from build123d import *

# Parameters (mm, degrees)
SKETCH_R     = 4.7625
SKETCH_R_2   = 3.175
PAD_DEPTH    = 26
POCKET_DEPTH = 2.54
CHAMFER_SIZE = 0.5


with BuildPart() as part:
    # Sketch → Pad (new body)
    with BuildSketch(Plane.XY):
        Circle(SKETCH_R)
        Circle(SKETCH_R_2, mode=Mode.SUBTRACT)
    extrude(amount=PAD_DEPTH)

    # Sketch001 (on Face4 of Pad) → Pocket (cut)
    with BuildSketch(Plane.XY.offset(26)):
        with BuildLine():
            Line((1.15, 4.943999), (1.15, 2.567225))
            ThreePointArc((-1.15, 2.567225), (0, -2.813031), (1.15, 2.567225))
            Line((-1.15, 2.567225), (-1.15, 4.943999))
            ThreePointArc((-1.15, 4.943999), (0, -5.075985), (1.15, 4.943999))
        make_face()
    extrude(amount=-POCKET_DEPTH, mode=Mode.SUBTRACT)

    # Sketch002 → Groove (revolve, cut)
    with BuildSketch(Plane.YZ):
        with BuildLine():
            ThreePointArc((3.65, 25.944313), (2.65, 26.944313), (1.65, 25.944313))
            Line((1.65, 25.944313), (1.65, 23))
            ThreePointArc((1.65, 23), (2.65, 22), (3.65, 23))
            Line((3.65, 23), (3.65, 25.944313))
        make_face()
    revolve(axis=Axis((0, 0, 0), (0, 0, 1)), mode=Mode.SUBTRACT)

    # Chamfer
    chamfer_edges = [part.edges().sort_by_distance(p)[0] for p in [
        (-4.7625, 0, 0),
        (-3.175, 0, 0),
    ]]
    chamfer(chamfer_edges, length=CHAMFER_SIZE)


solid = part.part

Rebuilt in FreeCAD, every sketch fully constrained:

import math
import FreeCAD as App
import Part
import Sketcher
from FreeCAD import Vector
Q = App.Units.Quantity


def edges_at(feature, points):
    """Names of the edges that pass closest to the given points."""
    edges = feature.Shape.Edges
    near = lambda p: min(range(len(edges)), key=lambda i: edges[i].distToShape(Part.Vertex(*p))[0])
    return sorted({f"Edge{near(p) + 1}" for p in points})

doc = App.newDocument("Part")
params = doc.addObject("Spreadsheet::Sheet", "Params")
for row, (alias, value) in enumerate([
    ("sketch1_diameter", "6.35 mm"),
    ("pad1_length", "26 mm"),
    ("pocket1_length", "2.54 mm"),
    ("sketch3_radius", "1 mm"),
    ("groove_angle", "360 deg"),
    ("chamfer_size", "0.5 mm"),
], start=1):
    params.set(f"A{row}", alias)
    params.set(f"B{row}", "=" + value)
    params.setAlias(f"B{row}", alias)

body = doc.addObject("PartDesign::Body", "Body")

# Sketch on XY plane
sketch1 = doc.addObject("Sketcher::SketchObject", "Sketch")
body.addObject(sketch1)
sketch1.AttachmentSupport = (doc.XY_Plane, [""])
sketch1.MapMode = "FlatFace"
sketch1.addGeometry([
    Part.Circle(Vector(0, 0, 0), Vector(0, 0, 1), 4.8),
    Part.Circle(Vector(0, 0, 0), Vector(0, 0, 1), 3.2),
], False)
sketch1.addConstraint([
    Sketcher.Constraint("Coincident", 0, 3, -1, 1),
    Sketcher.Constraint("Coincident", 1, 3, -1, 1),
    Sketcher.Constraint("Diameter", 1, Q("6.35 mm")),
    Sketcher.Constraint("Diameter", 0, Q("9.525 mm")),
])
sketch1.setExpression("Constraints[2]", "Params.sketch1_diameter")
pad1 = doc.addObject("PartDesign::Pad", "Pad")
body.addObject(pad1)
pad1.Profile = sketch1
pad1.setExpression("Length", "Params.pad1_length")

# Sketch on XY plane
sketch2 = doc.addObject("Sketcher::SketchObject", "Sketch001")
body.addObject(sketch2)
sketch2.AttachmentSupport = (doc.XY_Plane, [""])
sketch2.MapMode = "FlatFace"
sketch2.AttachmentOffset = App.Placement(Vector(0, 0, 26), App.Rotation())
sketch2.addGeometry([
    Part.LineSegment(Vector(1.1, 4.9, 0), Vector(1.1, 2.6, 0)),
    Part.ArcOfCircle(Part.Circle(Vector(0, 0, 0), Vector(0, 0, 1), 2.8), math.radians(114), math.radians(426)),
    Part.LineSegment(Vector(-1.1, 2.6, 0), Vector(-1.1, 4.9, 0)),
    Part.ArcOfCircle(Part.Circle(Vector(0, 0, 0), Vector(0, 0, 1), 5.1), math.radians(103), math.radians(437)),
], False)
sketch2.addConstraint([
    Sketcher.Constraint("Coincident", 0, 2, 1, 2),
    Sketcher.Constraint("Coincident", 1, 1, 2, 1),
    Sketcher.Constraint("Coincident", 2, 2, 3, 1),
    Sketcher.Constraint("Coincident", 3, 2, 0, 1),
    Sketcher.Constraint("Vertical", 0),
    Sketcher.Constraint("Vertical", 2),
    Sketcher.Constraint("Coincident", 1, 3, -1, 1),
    Sketcher.Constraint("Coincident", 3, 3, -1, 1),
    Sketcher.Constraint("Horizontal", 0, 2, 1, 1),
    Sketcher.Constraint("DistanceX", 1, 1, 0, 2, Q("2.3 mm")),
    Sketcher.Constraint("Radius", 1, Q("2.813031 mm")),
    Sketcher.Constraint("DistanceY", -1, 1, 2, 2, Q("4.943999 mm")),
])
pocket1 = doc.addObject("PartDesign::Pocket", "Pocket")
body.addObject(pocket1)
pocket1.Profile = sketch2
pocket1.setExpression("Length", "Params.pocket1_length")

# Sketch on YZ plane
sketch3 = doc.addObject("Sketcher::SketchObject", "Sketch002")
body.addObject(sketch3)
sketch3.AttachmentSupport = (doc.YZ_Plane, [""])
sketch3.MapMode = "FlatFace"
sketch3.addGeometry([
    Part.ArcOfCircle(Part.Circle(Vector(2.6, 25.9, 0), Vector(0, 0, 1), 1), math.radians(0), math.radians(180)),
    Part.LineSegment(Vector(1.6, 25.9, 0), Vector(1.6, 23, 0)),
    Part.ArcOfCircle(Part.Circle(Vector(2.6, 23, 0), Vector(0, 0, 1), 1), math.radians(180), math.radians(360)),
    Part.LineSegment(Vector(3.6, 23, 0), Vector(3.6, 25.9, 0)),
], False)
sketch3.addConstraint([
    Sketcher.Constraint("Tangent", 0, 2, 1, 1),
    Sketcher.Constraint("Tangent", 1, 2, 2, 1),
    Sketcher.Constraint("Tangent", 2, 2, 3, 1),
    Sketcher.Constraint("Tangent", 3, 2, 0, 1),
    Sketcher.Constraint("Vertical", 1),
    Sketcher.Constraint("Vertical", 3),
    Sketcher.Constraint("Radius", 0, Q("1 mm")),
    Sketcher.Constraint("DistanceY", -1, 1, 2, 3, Q("23 mm")),
    Sketcher.Constraint("DistanceX", -1, 1, 0, 3, Q("2.65 mm")),
    Sketcher.Constraint("DistanceY", 1, 2, 1, 1, Q("2.944313 mm")),
])
sketch3.setExpression("Constraints[6]", "Params.sketch3_radius")
groove = doc.addObject("PartDesign::Groove", "Groove")
body.addObject(groove)
groove.Profile = sketch3
groove.ReferenceAxis = (sketch3, ["V_Axis"])
groove.setExpression("Angle", "Params.groove_angle")
doc.recompute()

chamfer = doc.addObject("PartDesign::Chamfer", "Chamfer")
body.addObject(chamfer)
chamfer.Base = (groove, edges_at(groove, [(-4.763, 0, 0), (-3.175, 0, 0)]))
chamfer.setExpression("Size", "Params.chamfer_size")

doc.recompute()
